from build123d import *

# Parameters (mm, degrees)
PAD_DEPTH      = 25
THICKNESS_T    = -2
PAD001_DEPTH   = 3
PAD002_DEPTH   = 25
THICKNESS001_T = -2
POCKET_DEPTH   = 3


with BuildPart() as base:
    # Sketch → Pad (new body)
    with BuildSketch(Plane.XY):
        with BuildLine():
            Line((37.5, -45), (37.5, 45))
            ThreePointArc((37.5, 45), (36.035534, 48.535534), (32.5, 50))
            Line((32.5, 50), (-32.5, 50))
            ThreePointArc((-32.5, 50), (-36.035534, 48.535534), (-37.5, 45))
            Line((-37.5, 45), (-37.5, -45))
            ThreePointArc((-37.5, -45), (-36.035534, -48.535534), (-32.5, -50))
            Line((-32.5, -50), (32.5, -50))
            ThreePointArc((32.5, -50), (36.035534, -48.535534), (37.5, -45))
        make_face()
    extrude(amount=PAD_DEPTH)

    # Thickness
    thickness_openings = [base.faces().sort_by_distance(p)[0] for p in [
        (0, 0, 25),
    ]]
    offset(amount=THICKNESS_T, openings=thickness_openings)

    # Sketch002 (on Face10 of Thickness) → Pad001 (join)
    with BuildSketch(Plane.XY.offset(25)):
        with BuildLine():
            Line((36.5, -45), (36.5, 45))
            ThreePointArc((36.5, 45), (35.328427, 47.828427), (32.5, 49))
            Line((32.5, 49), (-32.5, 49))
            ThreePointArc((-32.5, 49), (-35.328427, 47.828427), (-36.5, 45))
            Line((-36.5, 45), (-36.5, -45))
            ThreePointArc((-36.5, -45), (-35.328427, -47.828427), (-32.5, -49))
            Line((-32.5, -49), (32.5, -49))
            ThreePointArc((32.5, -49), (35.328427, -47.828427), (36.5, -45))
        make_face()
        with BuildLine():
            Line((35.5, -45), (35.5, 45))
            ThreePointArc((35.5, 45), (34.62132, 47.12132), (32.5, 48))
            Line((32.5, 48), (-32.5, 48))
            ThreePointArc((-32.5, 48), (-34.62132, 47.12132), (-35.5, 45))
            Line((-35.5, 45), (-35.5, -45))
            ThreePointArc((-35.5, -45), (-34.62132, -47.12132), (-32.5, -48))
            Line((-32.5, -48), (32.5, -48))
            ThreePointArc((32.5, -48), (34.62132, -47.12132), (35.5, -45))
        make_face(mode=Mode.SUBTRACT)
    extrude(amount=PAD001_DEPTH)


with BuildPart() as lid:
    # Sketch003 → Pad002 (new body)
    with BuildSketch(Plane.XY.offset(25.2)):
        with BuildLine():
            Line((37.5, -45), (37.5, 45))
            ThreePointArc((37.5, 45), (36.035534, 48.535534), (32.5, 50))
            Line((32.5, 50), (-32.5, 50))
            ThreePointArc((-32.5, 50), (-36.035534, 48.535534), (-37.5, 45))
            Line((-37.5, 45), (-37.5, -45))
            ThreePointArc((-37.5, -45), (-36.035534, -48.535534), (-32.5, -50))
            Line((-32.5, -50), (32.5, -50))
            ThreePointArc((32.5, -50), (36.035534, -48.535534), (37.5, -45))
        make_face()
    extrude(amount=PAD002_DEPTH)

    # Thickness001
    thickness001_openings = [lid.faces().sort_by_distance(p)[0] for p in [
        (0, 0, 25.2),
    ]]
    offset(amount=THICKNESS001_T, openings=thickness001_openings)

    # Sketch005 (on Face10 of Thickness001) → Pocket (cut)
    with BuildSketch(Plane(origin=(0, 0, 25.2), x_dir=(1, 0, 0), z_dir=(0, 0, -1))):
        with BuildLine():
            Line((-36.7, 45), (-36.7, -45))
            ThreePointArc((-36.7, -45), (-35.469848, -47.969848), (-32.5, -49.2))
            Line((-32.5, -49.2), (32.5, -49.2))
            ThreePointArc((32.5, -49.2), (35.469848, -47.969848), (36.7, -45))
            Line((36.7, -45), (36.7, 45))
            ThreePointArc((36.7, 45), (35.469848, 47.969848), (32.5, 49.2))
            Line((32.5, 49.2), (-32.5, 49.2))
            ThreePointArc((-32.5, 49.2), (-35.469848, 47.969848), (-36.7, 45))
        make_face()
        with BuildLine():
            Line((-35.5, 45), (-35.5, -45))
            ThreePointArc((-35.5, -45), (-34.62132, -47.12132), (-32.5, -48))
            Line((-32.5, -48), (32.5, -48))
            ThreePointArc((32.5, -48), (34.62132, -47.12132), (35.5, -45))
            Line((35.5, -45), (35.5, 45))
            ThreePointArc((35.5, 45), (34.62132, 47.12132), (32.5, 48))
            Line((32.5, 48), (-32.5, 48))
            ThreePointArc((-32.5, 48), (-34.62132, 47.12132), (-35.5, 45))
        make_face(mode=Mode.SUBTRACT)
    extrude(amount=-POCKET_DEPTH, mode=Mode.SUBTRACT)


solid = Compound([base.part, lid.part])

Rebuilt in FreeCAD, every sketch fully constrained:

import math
import FreeCAD as App
import Part
import Sketcher


def faces_at(feature, points):
    """Names of the faces that lie closest to the given points."""
    faces = feature.Shape.Faces
    near = lambda p: min(range(len(faces)), key=lambda i: faces[i].distToShape(Part.Vertex(*p))[0])
    return sorted({f"Face{near(p) + 1}" for p in points})

doc = App.newDocument("Part")
body = doc.addObject("PartDesign::Body", "Body")

# Sketch on XY plane
sketch1 = body.newObject("Sketcher::SketchObject", "Sketch")
sketch1.AttachmentSupport = (doc.getObject("XY_Plane"), [""])
sketch1.MapMode = "FlatFace"
sketch1.addGeometry(Part.LineSegment(App.Vector(37.5, -45, 0), App.Vector(37.5, 45, 0)), False)
sketch1.addGeometry(Part.ArcOfCircle(Part.Circle(App.Vector(32.5, 45, 0), App.Vector(0, 0, 1), 5), math.radians(0), math.radians(90)), False)
sketch1.addGeometry(Part.LineSegment(App.Vector(32.5, 50, 0), App.Vector(-32.5, 50, 0)), False)
sketch1.addGeometry(Part.ArcOfCircle(Part.Circle(App.Vector(-32.5, 45, 0), App.Vector(0, 0, 1), 5), math.radians(90), math.radians(180)), False)
sketch1.addGeometry(Part.LineSegment(App.Vector(-37.5, 45, 0), App.Vector(-37.5, -45, 0)), False)
sketch1.addGeometry(Part.ArcOfCircle(Part.Circle(App.Vector(-32.5, -45, 0), App.Vector(0, 0, 1), 5), math.radians(180), math.radians(270)), False)
sketch1.addGeometry(Part.LineSegment(App.Vector(-32.5, -50, 0), App.Vector(32.5, -50, 0)), False)
sketch1.addGeometry(Part.ArcOfCircle(Part.Circle(App.Vector(32.5, -45, 0), App.Vector(0, 0, 1), 5), math.radians(-90), math.radians(0)), False)
sketch1.addConstraint(Sketcher.Constraint("Tangent", 0, 2, 1, 1))
sketch1.addConstraint(Sketcher.Constraint("Tangent", 1, 2, 2, 1))
sketch1.addConstraint(Sketcher.Constraint("Tangent", 2, 2, 3, 1))
sketch1.addConstraint(Sketcher.Constraint("Tangent", 3, 2, 4, 1))
sketch1.addConstraint(Sketcher.Constraint("Tangent", 4, 2, 5, 1))
sketch1.addConstraint(Sketcher.Constraint("Tangent", 5, 2, 6, 1))
sketch1.addConstraint(Sketcher.Constraint("Tangent", 6, 2, 7, 1))
sketch1.addConstraint(Sketcher.Constraint("Tangent", 7, 2, 0, 1))
sketch1.addConstraint(Sketcher.Constraint("Vertical", 0))
sketch1.addConstraint(Sketcher.Constraint("Horizontal", 2))
sketch1.addConstraint(Sketcher.Constraint("Vertical", 4))
sketch1.addConstraint(Sketcher.Constraint("Horizontal", 6))
sketch1.addConstraint(Sketcher.Constraint("Equal", 1, 3))
sketch1.addConstraint(Sketcher.Constraint("Equal", 3, 5))
sketch1.addConstraint(Sketcher.Constraint("Equal", 5, 7))
sketch1.addConstraint(Sketcher.Constraint("Symmetric", 1, 3, 5, 3, -1, 1))
sketch1.addConstraint(Sketcher.Constraint("Radius", 1, 5.0))
sketch1.addConstraint(Sketcher.Constraint("DistanceX", 2, 2, 2, 1, 65.0))
sketch1.addConstraint(Sketcher.Constraint("DistanceY", 0, 1, 0, 2, 90.0))
pad1 = body.newObject("PartDesign::Pad", "Pad")
pad1.Profile = sketch1
pad1.Length = 25
doc.recompute()

thickness = body.newObject("PartDesign::Thickness", "Thickness")
thickness.Base = (pad1, faces_at(pad1, [(0, 0, 25)]))
thickness.Value = 2
thickness.Reversed = True
thickness.Join = "Arc"

# Sketch on XY plane
sketch2 = body.newObject("Sketcher::SketchObject", "Sketch001")
sketch2.AttachmentSupport = (doc.getObject("XY_Plane"), [""])
sketch2.MapMode = "FlatFace"
sketch2.AttachmentOffset = App.Placement(App.Vector(0, 0, 25), App.Rotation())
sketch2.addGeometry(Part.LineSegment(App.Vector(36.5, -45, 0), App.Vector(36.5, 45, 0)), False)
sketch2.addGeometry(Part.ArcOfCircle(Part.Circle(App.Vector(32.5, 45, 0), App.Vector(0, 0, 1), 4), math.radians(0), math.radians(90)), False)
sketch2.addGeometry(Part.LineSegment(App.Vector(32.5, 49, 0), App.Vector(-32.5, 49, 0)), False)
sketch2.addGeometry(Part.ArcOfCircle(Part.Circle(App.Vector(-32.5, 45, 0), App.Vector(0, 0, 1), 4), math.radians(90), math.radians(180)), False)
sketch2.addGeometry(Part.LineSegment(App.Vector(-36.5, 45, 0), App.Vector(-36.5, -45, 0)), False)
sketch2.addGeometry(Part.ArcOfCircle(Part.Circle(App.Vector(-32.5, -45, 0), App.Vector(0, 0, 1), 4), math.radians(-180), math.radians(-90)), False)
sketch2.addGeometry(Part.LineSegment(App.Vector(-32.5, -49, 0), App.Vector(32.5, -49, 0)), False)
sketch2.addGeometry(Part.ArcOfCircle(Part.Circle(App.Vector(32.5, -45, 0), App.Vector(0, 0, 1), 4), math.radians(-90), math.radians(0)), False)
sketch2.addGeometry(Part.LineSegment(App.Vector(35.5, 45, 0), App.Vector(35.5, -45, 0)), False)
sketch2.addGeometry(Part.ArcOfCircle(Part.Circle(App.Vector(32.5, -45, 0), App.Vector(0, 0, 1), 3), math.radians(-90), math.radians(0)), False)
sketch2.addGeometry(Part.LineSegment(App.Vector(32.5, -48, 0), App.Vector(-32.5, -48, 0)), False)
sketch2.addGeometry(Part.ArcOfCircle(Part.Circle(App.Vector(-32.5, -45, 0), App.Vector(0, 0, 1), 3), math.radians(-180), math.radians(-90)), False)
sketch2.addGeometry(Part.LineSegment(App.Vector(-35.5, -45, 0), App.Vector(-35.5, 45, 0)), False)
sketch2.addGeometry(Part.ArcOfCircle(Part.Circle(App.Vector(-32.5, 45, 0), App.Vector(0, 0, 1), 3), math.radians(90), math.radians(180)), False)
sketch2.addGeometry(Part.LineSegment(App.Vector(-32.5, 48, 0), App.Vector(32.5, 48, 0)), False)
sketch2.addGeometry(Part.ArcOfCircle(Part.Circle(App.Vector(32.5, 45, 0), App.Vector(0, 0, 1), 3), math.radians(0), math.radians(90)), False)
sketch2.addConstraint(Sketcher.Constraint("Tangent", 0, 2, 1, 1))
sketch2.addConstraint(Sketcher.Constraint("Tangent", 1, 2, 2, 1))
sketch2.addConstraint(Sketcher.Constraint("Tangent", 2, 2, 3, 1))
sketch2.addConstraint(Sketcher.Constraint("Tangent", 3, 2, 4, 1))
sketch2.addConstraint(Sketcher.Constraint("Tangent", 4, 2, 5, 1))
sketch2.addConstraint(Sketcher.Constraint("Tangent", 5, 2, 6, 1))
sketch2.addConstraint(Sketcher.Constraint("Tangent", 6, 2, 7, 1))
sketch2.addConstraint(Sketcher.Constraint("Tangent", 7, 2, 0, 1))
sketch2.addConstraint(Sketcher.Constraint("Tangent", 8, 2, 9, 2))
sketch2.addConstraint(Sketcher.Constraint("Tangent", 9, 1, 10, 1))
sketch2.addConstraint(Sketcher.Constraint("Tangent", 10, 2, 11, 2))
sketch2.addConstraint(Sketcher.Constraint("Tangent", 11, 1, 12, 1))
sketch2.addConstraint(Sketcher.Constraint("Tangent", 12, 2, 13, 2))
sketch2.addConstraint(Sketcher.Constraint("Tangent", 13, 1, 14, 1))
sketch2.addConstraint(Sketcher.Constraint("Tangent", 14, 2, 15, 2))
sketch2.addConstraint(Sketcher.Constraint("Tangent", 15, 1, 8, 1))
sketch2.addConstraint(Sketcher.Constraint("Vertical", 0))
sketch2.addConstraint(Sketcher.Constraint("Horizontal", 2))
sketch2.addConstraint(Sketcher.Constraint("Vertical", 4))
sketch2.addConstraint(Sketcher.Constraint("Horizontal", 6))
sketch2.addConstraint(Sketcher.Constraint("Vertical", 8))
sketch2.addConstraint(Sketcher.Constraint("Horizontal", 10))
sketch2.addConstraint(Sketcher.Constraint("Vertical", 12))
sketch2.addConstraint(Sketcher.Constraint("Horizontal", 14))
sketch2.addConstraint(Sketcher.Constraint("Coincident", 9, 3, 7, 3))
sketch2.addConstraint(Sketcher.Constraint("Coincident", 11, 3, 5, 3))
sketch2.addConstraint(Sketcher.Constraint("Coincident", 13, 3, 3, 3))
sketch2.addConstraint(Sketcher.Constraint("Equal", 1, 3))
sketch2.addConstraint(Sketcher.Constraint("Equal", 3, 5))
sketch2.addConstraint(Sketcher.Constraint("Equal", 5, 7))
sketch2.addConstraint(Sketcher.Constraint("Equal", 13, 15))
sketch2.addConstraint(Sketcher.Constraint("Symmetric", 1, 3, 5, 3, -1, 1))
sketch2.addConstraint(Sketcher.Constraint("Radius", 1, 4.0))
sketch2.addConstraint(Sketcher.Constraint("Radius", 9, 3.000001))
sketch2.addConstraint(Sketcher.Constraint("DistanceX", 2, 2, 2, 1, 65.0))
sketch2.addConstraint(Sketcher.Constraint("DistanceY", 0, 1, 0, 2, 90.0))
pad2 = body.newObject("PartDesign::Pad", "Pad001")
pad2.Profile = sketch2
pad2.Length = 3
body2 = doc.addObject("PartDesign::Body", "Body001")

# Sketch on XY plane
sketch3 = body2.newObject("Sketcher::SketchObject", "Sketch002")
sketch3.AttachmentSupport = (doc.getObject("XY_Plane001"), [""])
sketch3.MapMode = "FlatFace"
sketch3.AttachmentOffset = App.Placement(App.Vector(0, 0, 25.2), App.Rotation())
sketch3.addGeometry(Part.LineSegment(App.Vector(37.5, -45, 0), App.Vector(37.5, 45, 0)), False)
sketch3.addGeometry(Part.ArcOfCircle(Part.Circle(App.Vector(32.5, 45, 0), App.Vector(0, 0, 1), 5), math.radians(0), math.radians(90)), False)
sketch3.addGeometry(Part.LineSegment(App.Vector(32.5, 50, 0), App.Vector(-32.5, 50, 0)), False)
sketch3.addGeometry(Part.ArcOfCircle(Part.Circle(App.Vector(-32.5, 45, 0), App.Vector(0, 0, 1), 5), math.radians(90), math.radians(180)), False)
sketch3.addGeometry(Part.LineSegment(App.Vector(-37.5, 45, 0), App.Vector(-37.5, -45, 0)), False)
sketch3.addGeometry(Part.ArcOfCircle(Part.Circle(App.Vector(-32.5, -45, 0), App.Vector(0, 0, 1), 5), math.radians(180), math.radians(270)), False)
sketch3.addGeometry(Part.LineSegment(App.Vector(-32.5, -50, 0), App.Vector(32.5, -50, 0)), False)
sketch3.addGeometry(Part.ArcOfCircle(Part.Circle(App.Vector(32.5, -45, 0), App.Vector(0, 0, 1), 5), math.radians(-90), math.radians(0)), False)
sketch3.addConstraint(Sketcher.Constraint("Tangent", 0, 2, 1, 1))
sketch3.addConstraint(Sketcher.Constraint("Tangent", 1, 2, 2, 1))
sketch3.addConstraint(Sketcher.Constraint("Tangent", 2, 2, 3, 1))
sketch3.addConstraint(Sketcher.Constraint("Tangent", 3, 2, 4, 1))
sketch3.addConstraint(Sketcher.Constraint("Tangent", 4, 2, 5, 1))
sketch3.addConstraint(Sketcher.Constraint("Tangent", 5, 2, 6, 1))
sketch3.addConstraint(Sketcher.Constraint("Tangent", 6, 2, 7, 1))
sketch3.addConstraint(Sketcher.Constraint("Tangent", 7, 2, 0, 1))
sketch3.addConstraint(Sketcher.Constraint("Vertical", 0))
sketch3.addConstraint(Sketcher.Constraint("Horizontal", 2))
sketch3.addConstraint(Sketcher.Constraint("Vertical", 4))
sketch3.addConstraint(Sketcher.Constraint("Horizontal", 6))
sketch3.addConstraint(Sketcher.Constraint("Equal", 1, 3))
sketch3.addConstraint(Sketcher.Constraint("Equal", 3, 5))
sketch3.addConstraint(Sketcher.Constraint("Equal", 5, 7))
sketch3.addConstraint(Sketcher.Constraint("Symmetric", 1, 3, 5, 3, -1, 1))
sketch3.addConstraint(Sketcher.Constraint("Radius", 1, 5.0))
sketch3.addConstraint(Sketcher.Constraint("DistanceX", 2, 2, 2, 1, 65.0))
sketch3.addConstraint(Sketcher.Constraint("DistanceY", 0, 1, 0, 2, 90.0))
pad3 = body2.newObject("PartDesign::Pad", "Pad002")
pad3.Profile = sketch3
pad3.Length = 25
doc.recompute()

thickness2 = body2.newObject("PartDesign::Thickness", "Thickness001")
thickness2.Base = (pad3, faces_at(pad3, [(0, 0, 25.2)]))
thickness2.Value = 2
thickness2.Reversed = True
thickness2.Join = "Arc"

# Sketch on XY plane
sketch4 = body2.newObject("Sketcher::SketchObject", "Sketch003")
sketch4.AttachmentSupport = (doc.getObject("XY_Plane001"), [""])
sketch4.MapMode = "FlatFace"
sketch4.AttachmentOffset = App.Placement(App.Vector(0, 0, 25.2), App.Rotation())
sketch4.addGeometry(Part.LineSegment(App.Vector(-36.7, -45, 0), App.Vector(-36.7, 45, 0)), False)
sketch4.addGeometry(Part.ArcOfCircle(Part.Circle(App.Vector(-32.5, 45, 0), App.Vector(0, 0, 1), 4.2), math.radians(90), math.radians(180)), False)
sketch4.addGeometry(Part.LineSegment(App.Vector(-32.5, 49.2, 0), App.Vector(32.5, 49.2, 0)), False)
sketch4.addGeometry(Part.ArcOfCircle(Part.Circle(App.Vector(32.5, 45, 0), App.Vector(0, 0, 1), 4.2), math.radians(0), math.radians(90)), False)
sketch4.addGeometry(Part.LineSegment(App.Vector(36.7, 45, 0), App.Vector(36.7, -45, 0)), False)
sketch4.addGeometry(Part.ArcOfCircle(Part.Circle(App.Vector(32.5, -45, 0), App.Vector(0, 0, 1), 4.2), math.radians(-90), math.radians(0)), False)
sketch4.addGeometry(Part.LineSegment(App.Vector(32.5, -49.2, 0), App.Vector(-32.5, -49.2, 0)), False)
sketch4.addGeometry(Part.ArcOfCircle(Part.Circle(App.Vector(-32.5, -45, 0), App.Vector(0, 0, 1), 4.2), math.radians(-180), math.radians(-90)), False)
sketch4.addGeometry(Part.LineSegment(App.Vector(-35.5, 45, 0), App.Vector(-35.5, -45, 0)), False)
sketch4.addGeometry(Part.ArcOfCircle(Part.Circle(App.Vector(-32.5, -45, 0), App.Vector(0, 0, 1), 3), math.radians(-180), math.radians(-90)), False)
sketch4.addGeometry(Part.LineSegment(App.Vector(-32.5, -48, 0), App.Vector(32.5, -48, 0)), False)
sketch4.addGeometry(Part.ArcOfCircle(Part.Circle(App.Vector(32.5, -45, 0), App.Vector(0, 0, 1), 3), math.radians(-90), math.radians(0)), False)
sketch4.addGeometry(Part.LineSegment(App.Vector(35.5, -45, 0), App.Vector(35.5, 45, 0)), False)
sketch4.addGeometry(Part.ArcOfCircle(Part.Circle(App.Vector(32.5, 45, 0), App.Vector(0, 0, 1), 3), math.radians(0), math.radians(90)), False)
sketch4.addGeometry(Part.LineSegment(App.Vector(32.5, 48, 0), App.Vector(-32.5, 48, 0)), False)
sketch4.addGeometry(Part.ArcOfCircle(Part.Circle(App.Vector(-32.5, 45, 0), App.Vector(0, 0, 1), 3), math.radians(90), math.radians(180)), False)
sketch4.addConstraint(Sketcher.Constraint("Tangent", 0, 2, 1, 2))
sketch4.addConstraint(Sketcher.Constraint("Tangent", 1, 1, 2, 1))
sketch4.addConstraint(Sketcher.Constraint("Tangent", 2, 2, 3, 2))
sketch4.addConstraint(Sketcher.Constraint("Tangent", 3, 1, 4, 1))
sketch4.addConstraint(Sketcher.Constraint("Tangent", 4, 2, 5, 2))
sketch4.addConstraint(Sketcher.Constraint("Tangent", 5, 1, 6, 1))
sketch4.addConstraint(Sketcher.Constraint("Tangent", 6, 2, 7, 2))
sketch4.addConstraint(Sketcher.Constraint("Tangent", 7, 1, 0, 1))
sketch4.addConstraint(Sketcher.Constraint("Tangent", 8, 2, 9, 1))
sketch4.addConstraint(Sketcher.Constraint("Tangent", 9, 2, 10, 1))
sketch4.addConstraint(Sketcher.Constraint("Tangent", 10, 2, 11, 1))
sketch4.addConstraint(Sketcher.Constraint("Tangent", 11, 2, 12, 1))
sketch4.addConstraint(Sketcher.Constraint("Tangent", 12, 2, 13, 1))
sketch4.addConstraint(Sketcher.Constraint("Tangent", 13, 2, 14, 1))
sketch4.addConstraint(Sketcher.Constraint("Tangent", 14, 2, 15, 1))
sketch4.addConstraint(Sketcher.Constraint("Tangent", 15, 2, 8, 1))
sketch4.addConstraint(Sketcher.Constraint("Vertical", 0))
sketch4.addConstraint(Sketcher.Constraint("Horizontal", 2))
sketch4.addConstraint(Sketcher.Constraint("Vertical", 4))
sketch4.addConstraint(Sketcher.Constraint("Horizontal", 6))
sketch4.addConstraint(Sketcher.Constraint("Vertical", 8))
sketch4.addConstraint(Sketcher.Constraint("Horizontal", 10))
sketch4.addConstraint(Sketcher.Constraint("Vertical", 12))
sketch4.addConstraint(Sketcher.Constraint("Horizontal", 14))
sketch4.addConstraint(Sketcher.Constraint("Coincident", 9, 3, 7, 3))
sketch4.addConstraint(Sketcher.Constraint("Coincident", 11, 3, 5, 3))
sketch4.addConstraint(Sketcher.Constraint("Coincident", 13, 3, 3, 3))
sketch4.addConstraint(Sketcher.Constraint("Equal", 1, 3))
sketch4.addConstraint(Sketcher.Constraint("Equal", 3, 5))
sketch4.addConstraint(Sketcher.Constraint("Equal", 5, 7))
sketch4.addConstraint(Sketcher.Constraint("Equal", 13, 15))
sketch4.addConstraint(Sketcher.Constraint("Symmetric", 1, 3, 5, 3, -1, 1))
sketch4.addConstraint(Sketcher.Constraint("Radius", 9, 3.000001))
sketch4.addConstraint(Sketcher.Constraint("Radius", 1, 4.200002))
sketch4.addConstraint(Sketcher.Constraint("DistanceX", 2, 1, 2, 2, 65.0))
sketch4.addConstraint(Sketcher.Constraint("DistanceY", 0, 1, 0, 2, 90.0))
pocket1 = body2.newObject("PartDesign::Pocket", "Pocket")
pocket1.Profile = sketch4
pocket1.Length = 3
pocket1.Reversed = True

doc.recompute()
